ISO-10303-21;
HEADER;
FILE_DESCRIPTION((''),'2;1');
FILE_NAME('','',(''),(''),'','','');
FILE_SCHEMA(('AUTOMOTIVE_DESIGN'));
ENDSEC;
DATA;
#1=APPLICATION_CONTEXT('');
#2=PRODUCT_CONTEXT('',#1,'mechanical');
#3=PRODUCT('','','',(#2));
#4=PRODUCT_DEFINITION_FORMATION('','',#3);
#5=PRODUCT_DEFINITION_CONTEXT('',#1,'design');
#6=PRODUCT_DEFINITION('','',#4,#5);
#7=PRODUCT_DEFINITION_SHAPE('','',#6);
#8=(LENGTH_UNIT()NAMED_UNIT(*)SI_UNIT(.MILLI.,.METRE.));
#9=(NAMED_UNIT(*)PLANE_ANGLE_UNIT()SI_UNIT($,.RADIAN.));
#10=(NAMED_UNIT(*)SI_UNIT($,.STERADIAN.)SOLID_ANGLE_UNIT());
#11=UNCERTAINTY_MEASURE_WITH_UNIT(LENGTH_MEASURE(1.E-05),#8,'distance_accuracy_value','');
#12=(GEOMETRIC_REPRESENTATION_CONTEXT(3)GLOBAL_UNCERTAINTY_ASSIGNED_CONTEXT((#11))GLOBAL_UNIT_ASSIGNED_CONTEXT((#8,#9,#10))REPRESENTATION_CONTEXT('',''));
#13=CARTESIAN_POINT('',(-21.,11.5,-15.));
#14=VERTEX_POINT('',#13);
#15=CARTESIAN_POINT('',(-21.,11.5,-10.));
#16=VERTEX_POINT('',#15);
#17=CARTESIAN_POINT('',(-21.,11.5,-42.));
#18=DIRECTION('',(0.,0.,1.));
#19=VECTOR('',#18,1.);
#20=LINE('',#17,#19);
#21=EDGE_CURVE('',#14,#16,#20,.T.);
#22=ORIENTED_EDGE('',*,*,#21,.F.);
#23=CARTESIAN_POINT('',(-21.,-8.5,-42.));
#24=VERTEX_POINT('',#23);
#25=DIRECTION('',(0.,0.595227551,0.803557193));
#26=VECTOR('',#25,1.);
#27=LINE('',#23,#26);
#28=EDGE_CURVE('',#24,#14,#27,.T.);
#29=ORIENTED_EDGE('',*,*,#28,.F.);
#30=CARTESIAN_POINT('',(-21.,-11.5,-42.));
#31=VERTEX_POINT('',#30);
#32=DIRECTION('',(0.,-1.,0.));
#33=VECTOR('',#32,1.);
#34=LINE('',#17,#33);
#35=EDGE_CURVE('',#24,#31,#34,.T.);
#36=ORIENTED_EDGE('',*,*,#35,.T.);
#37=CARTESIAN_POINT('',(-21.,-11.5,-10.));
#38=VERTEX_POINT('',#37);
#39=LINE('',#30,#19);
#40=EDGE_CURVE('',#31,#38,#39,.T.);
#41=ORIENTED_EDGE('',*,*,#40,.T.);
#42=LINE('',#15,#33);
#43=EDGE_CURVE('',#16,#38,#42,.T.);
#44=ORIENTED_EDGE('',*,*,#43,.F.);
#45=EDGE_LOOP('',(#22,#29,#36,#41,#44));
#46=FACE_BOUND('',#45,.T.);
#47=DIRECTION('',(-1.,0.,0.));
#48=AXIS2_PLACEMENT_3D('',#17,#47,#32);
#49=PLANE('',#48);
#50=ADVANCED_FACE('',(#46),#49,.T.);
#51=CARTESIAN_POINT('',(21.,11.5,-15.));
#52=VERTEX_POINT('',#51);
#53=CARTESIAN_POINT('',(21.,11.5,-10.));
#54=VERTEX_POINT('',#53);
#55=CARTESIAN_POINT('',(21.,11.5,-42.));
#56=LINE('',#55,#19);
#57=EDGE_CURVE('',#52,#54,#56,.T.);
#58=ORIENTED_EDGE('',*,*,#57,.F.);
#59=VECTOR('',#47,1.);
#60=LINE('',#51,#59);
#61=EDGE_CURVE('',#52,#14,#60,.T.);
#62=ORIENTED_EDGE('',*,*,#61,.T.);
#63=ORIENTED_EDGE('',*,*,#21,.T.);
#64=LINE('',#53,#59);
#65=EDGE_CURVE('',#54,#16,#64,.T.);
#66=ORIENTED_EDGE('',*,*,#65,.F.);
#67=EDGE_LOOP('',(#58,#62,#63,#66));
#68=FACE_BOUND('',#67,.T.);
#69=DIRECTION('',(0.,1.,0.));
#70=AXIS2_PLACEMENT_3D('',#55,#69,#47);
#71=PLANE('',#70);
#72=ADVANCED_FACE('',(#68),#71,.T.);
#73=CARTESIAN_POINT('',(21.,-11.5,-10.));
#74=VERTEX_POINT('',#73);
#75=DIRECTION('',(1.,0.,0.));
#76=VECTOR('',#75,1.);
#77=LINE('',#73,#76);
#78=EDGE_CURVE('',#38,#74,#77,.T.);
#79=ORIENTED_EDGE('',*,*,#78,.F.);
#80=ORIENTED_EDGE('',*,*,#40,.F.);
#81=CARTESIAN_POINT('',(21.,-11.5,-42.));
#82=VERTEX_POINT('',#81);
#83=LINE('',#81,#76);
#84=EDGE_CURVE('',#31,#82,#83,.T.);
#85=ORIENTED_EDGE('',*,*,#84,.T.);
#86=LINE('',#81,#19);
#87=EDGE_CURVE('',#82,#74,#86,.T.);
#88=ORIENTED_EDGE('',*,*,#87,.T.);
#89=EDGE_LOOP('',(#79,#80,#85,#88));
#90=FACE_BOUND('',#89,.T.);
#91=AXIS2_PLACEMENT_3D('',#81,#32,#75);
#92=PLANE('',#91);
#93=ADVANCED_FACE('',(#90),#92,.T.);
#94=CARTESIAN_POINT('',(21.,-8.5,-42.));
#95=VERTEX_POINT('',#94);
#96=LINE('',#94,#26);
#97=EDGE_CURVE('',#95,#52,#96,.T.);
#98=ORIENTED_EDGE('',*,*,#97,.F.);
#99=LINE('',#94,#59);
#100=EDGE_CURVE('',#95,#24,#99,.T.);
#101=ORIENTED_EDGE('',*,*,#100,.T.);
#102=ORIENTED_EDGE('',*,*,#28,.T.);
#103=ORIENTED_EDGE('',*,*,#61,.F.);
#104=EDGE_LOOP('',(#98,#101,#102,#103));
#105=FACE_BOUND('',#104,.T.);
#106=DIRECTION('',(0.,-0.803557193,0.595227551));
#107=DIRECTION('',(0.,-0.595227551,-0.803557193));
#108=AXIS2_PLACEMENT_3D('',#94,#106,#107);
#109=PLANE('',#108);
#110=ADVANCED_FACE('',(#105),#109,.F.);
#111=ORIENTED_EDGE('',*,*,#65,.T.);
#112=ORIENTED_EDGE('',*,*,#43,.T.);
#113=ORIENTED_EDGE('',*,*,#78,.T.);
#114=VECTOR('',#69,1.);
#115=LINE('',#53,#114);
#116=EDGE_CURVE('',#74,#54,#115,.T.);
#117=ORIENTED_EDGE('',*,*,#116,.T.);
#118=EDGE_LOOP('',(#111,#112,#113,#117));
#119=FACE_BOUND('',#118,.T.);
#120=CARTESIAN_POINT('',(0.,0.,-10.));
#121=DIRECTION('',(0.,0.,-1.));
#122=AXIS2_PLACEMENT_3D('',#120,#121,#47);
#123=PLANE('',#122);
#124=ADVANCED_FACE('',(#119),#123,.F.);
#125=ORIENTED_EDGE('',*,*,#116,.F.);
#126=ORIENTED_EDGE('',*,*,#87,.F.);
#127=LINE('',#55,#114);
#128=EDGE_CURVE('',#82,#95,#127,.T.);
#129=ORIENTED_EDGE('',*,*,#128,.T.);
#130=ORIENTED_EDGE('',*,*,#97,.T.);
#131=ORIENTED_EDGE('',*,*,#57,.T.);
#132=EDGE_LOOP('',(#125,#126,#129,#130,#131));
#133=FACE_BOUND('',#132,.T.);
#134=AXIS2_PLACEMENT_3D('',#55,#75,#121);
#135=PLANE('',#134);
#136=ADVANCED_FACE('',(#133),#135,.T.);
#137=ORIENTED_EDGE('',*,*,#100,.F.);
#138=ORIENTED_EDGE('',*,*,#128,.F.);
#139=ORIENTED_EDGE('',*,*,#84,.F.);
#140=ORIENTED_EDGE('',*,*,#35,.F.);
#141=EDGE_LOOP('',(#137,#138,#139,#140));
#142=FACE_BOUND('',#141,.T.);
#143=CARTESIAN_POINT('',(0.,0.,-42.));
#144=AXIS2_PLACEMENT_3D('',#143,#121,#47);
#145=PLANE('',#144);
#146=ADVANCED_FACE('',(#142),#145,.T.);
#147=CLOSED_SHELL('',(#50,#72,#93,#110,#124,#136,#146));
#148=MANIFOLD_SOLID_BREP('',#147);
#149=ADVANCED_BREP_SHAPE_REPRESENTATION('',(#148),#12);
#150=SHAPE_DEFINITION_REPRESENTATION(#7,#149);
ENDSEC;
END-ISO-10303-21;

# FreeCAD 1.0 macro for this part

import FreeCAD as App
import Part
import Sketcher
from FreeCAD import Vector
Q = App.Units.Quantity

doc = App.newDocument("Part")
body = doc.addObject("PartDesign::Body", "Body")

# Sketch on XY plane
sketch1 = body.newObject("Sketcher::SketchObject", "Sketch")
sketch1.AttachmentSupport = (doc.getObject("XY_Plane"), [""])
sketch1.MapMode = "FlatFace"
sketch1.AttachmentOffset = App.Placement(Vector(0, 0, -10), App.Rotation())
sketch1.addGeometry(Part.LineSegment(Vector(-21, 12, 0), Vector(-21, -12, 0)), False)
sketch1.addGeometry(Part.LineSegment(Vector(-21, -12, 0), Vector(21, -12, 0)), False)
sketch1.addGeometry(Part.LineSegment(Vector(21, -12, 0), Vector(21, 12, 0)), False)
sketch1.addGeometry(Part.LineSegment(Vector(21, 12, 0), Vector(-21, 12, 0)), False)
sketch1.addConstraint(Sketcher.Constraint("Coincident", 0, 2, 1, 1))
sketch1.addConstraint(Sketcher.Constraint("Coincident", 1, 2, 2, 1))
sketch1.addConstraint(Sketcher.Constraint("Coincident", 2, 2, 3, 1))
sketch1.addConstraint(Sketcher.Constraint("Coincident", 3, 2, 0, 1))
sketch1.addConstraint(Sketcher.Constraint("Vertical", 0))
sketch1.addConstraint(Sketcher.Constraint("Horizontal", 1))
sketch1.addConstraint(Sketcher.Constraint("Vertical", 2))
sketch1.addConstraint(Sketcher.Constraint("Horizontal", 3))
sketch1.addConstraint(Sketcher.Constraint("Symmetric", 0, 2, 2, 2, -1, 1))
sketch1.addConstraint(Sketcher.Constraint("DistanceX", 1, 1, 1, 2, Q("42 mm")))
sketch1.addConstraint(Sketcher.Constraint("DistanceY", 0, 2, 0, 1, Q("23 mm")))
pad1 = body.newObject("PartDesign::Pad", "Pad")
pad1.Profile = sketch1
pad1.Length = 32
pad1.Reversed = True

# Sketch on YZ plane
sketch2 = body.newObject("Sketcher::SketchObject", "Sketch001")
sketch2.AttachmentSupport = (doc.getObject("YZ_Plane"), [""])
sketch2.MapMode = "FlatFace"
sketch2.AttachmentOffset = App.Placement(Vector(0, 0, -21), App.Rotation())
sketch2.addGeometry(Part.LineSegment(Vector(12, -42, 0), Vector(-8, -42, 0)), False)
sketch2.addGeometry(Part.LineSegment(Vector(-8, -42, 0), Vector(12, -15, 0)), False)
sketch2.addGeometry(Part.LineSegment(Vector(12, -15, 0), Vector(12, -42, 0)), False)
sketch2.addConstraint(Sketcher.Constraint("Coincident", 0, 2, 1, 1))
sketch2.addConstraint(Sketcher.Constraint("Coincident", 1, 2, 2, 1))
sketch2.addConstraint(Sketcher.Constraint("Coincident", 2, 2, 0, 1))
sketch2.addConstraint(Sketcher.Constraint("Horizontal", 0))
sketch2.addConstraint(Sketcher.Constraint("Vertical", 2))
sketch2.addConstraint(Sketcher.Constraint("DistanceX", 0, 2, 0, 1, Q("20 mm")))
sketch2.addConstraint(Sketcher.Constraint("DistanceY", 2, 2, 2, 1, Q("27 mm")))
sketch2.addConstraint(Sketcher.Constraint("DistanceY", 0, 2, -1, 1, Q("42 mm")))
sketch2.addConstraint(Sketcher.Constraint("DistanceX", 0, 2, -1, 1, Q("8.5 mm")))
pocket1 = body.newObject("PartDesign::Pocket", "Pocket")
pocket1.Profile = sketch2
pocket1.Length = 42
pocket1.Reversed = True

doc.recompute()
